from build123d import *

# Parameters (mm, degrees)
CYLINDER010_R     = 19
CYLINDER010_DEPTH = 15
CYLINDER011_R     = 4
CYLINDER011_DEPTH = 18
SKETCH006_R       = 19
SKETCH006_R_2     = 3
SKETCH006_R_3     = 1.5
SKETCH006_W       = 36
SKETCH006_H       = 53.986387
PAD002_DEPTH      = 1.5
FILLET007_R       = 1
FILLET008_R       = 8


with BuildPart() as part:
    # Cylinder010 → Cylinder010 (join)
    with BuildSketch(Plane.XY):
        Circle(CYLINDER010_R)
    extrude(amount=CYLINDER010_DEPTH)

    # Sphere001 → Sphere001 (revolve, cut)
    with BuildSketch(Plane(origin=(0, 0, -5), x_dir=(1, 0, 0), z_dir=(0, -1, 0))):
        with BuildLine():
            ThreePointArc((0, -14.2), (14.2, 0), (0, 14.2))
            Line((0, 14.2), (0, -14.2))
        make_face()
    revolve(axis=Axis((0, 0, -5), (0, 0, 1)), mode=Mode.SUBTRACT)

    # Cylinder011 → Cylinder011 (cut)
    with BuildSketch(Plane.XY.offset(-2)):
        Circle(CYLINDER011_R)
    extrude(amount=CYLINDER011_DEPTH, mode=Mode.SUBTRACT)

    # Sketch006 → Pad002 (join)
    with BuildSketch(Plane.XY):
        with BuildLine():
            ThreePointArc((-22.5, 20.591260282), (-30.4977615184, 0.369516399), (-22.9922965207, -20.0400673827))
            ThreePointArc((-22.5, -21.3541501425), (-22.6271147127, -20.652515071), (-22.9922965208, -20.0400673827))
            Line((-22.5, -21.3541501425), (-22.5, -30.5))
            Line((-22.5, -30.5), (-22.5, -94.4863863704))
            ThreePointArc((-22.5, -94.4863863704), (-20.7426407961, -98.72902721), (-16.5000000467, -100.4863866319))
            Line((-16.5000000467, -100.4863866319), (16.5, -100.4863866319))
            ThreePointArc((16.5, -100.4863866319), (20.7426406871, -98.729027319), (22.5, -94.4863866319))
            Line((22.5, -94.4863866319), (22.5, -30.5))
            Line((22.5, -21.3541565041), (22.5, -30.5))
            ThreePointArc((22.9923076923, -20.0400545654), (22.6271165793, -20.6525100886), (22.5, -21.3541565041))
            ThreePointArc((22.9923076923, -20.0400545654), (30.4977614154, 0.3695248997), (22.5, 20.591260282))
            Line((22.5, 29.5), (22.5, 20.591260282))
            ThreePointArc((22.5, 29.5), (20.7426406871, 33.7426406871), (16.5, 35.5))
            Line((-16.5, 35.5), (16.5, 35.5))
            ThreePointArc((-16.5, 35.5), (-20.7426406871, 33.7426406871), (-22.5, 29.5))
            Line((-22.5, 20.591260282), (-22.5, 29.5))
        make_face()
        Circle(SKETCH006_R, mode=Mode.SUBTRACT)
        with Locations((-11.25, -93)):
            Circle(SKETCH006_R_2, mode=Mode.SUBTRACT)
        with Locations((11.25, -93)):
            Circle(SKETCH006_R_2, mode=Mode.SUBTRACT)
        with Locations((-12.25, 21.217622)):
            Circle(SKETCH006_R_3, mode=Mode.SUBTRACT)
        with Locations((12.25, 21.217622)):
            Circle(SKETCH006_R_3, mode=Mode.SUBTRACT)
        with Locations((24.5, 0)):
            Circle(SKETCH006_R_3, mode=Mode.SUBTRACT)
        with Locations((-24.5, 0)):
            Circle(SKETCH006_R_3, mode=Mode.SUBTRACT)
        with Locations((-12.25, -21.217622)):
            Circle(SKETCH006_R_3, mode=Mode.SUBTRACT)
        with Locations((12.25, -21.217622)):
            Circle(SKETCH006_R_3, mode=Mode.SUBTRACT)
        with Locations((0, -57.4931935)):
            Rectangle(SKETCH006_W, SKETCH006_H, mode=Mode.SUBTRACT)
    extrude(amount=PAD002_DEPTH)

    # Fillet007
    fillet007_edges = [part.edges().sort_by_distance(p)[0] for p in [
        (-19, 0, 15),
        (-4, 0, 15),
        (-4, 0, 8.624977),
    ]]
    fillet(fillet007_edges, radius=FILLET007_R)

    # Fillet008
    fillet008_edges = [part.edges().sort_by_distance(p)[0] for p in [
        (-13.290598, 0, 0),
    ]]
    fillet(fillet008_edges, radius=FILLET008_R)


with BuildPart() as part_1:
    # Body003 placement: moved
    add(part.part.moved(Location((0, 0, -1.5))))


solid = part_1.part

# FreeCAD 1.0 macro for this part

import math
import FreeCAD as App
import Part
import Sketcher
from FreeCAD import Vector
Q = App.Units.Quantity


def edges_at(feature, points):
    """Names of the edges that pass closest to the given points."""
    edges = feature.Shape.Edges
    near = lambda p: min(range(len(edges)), key=lambda i: edges[i].distToShape(Part.Vertex(*p))[0])
    return sorted({f"Edge{near(p) + 1}" for p in points})

doc = App.newDocument("Part")
body = doc.addObject("PartDesign::Body", "Body")

# Sketch on XY plane
sketch1 = body.newObject("Sketcher::SketchObject", "Sketch")
sketch1.AttachmentSupport = (doc.getObject("XY_Plane"), [""])
sketch1.MapMode = "FlatFace"
sketch1.addGeometry(Part.Circle(Vector(0, 0, 0), Vector(0, 0, 1), 19), False)
sketch1.addConstraint([
    Sketcher.Constraint("Coincident", 0, 3, -1, 1),
    Sketcher.Constraint("Diameter", 0, Q("38 mm")),
])
pad1 = body.newObject("PartDesign::Pad", "Pad")
pad1.Profile = sketch1
pad1.Length = 15

# Sketch on XZ plane
sketch2 = body.newObject("Sketcher::SketchObject", "Sketch001")
sketch2.AttachmentSupport = (doc.getObject("XZ_Plane"), [""])
sketch2.MapMode = "FlatFace"
sketch2.addGeometry([
    Part.ArcOfCircle(Part.Circle(Vector(0, -5, 0), Vector(0, 0, 1), 14), math.radians(-90), math.radians(90)),
    Part.LineSegment(Vector(0, 9, 0), Vector(0, -19, 0)),
], False)
sketch2.addConstraint([
    Sketcher.Constraint("Coincident", 0, 1, 1, 2),
    Sketcher.Constraint("Coincident", 1, 1, 0, 2),
    Sketcher.Constraint("Vertical", 1),
    Sketcher.Constraint("PointOnObject", 0, 3, -2),
    Sketcher.Constraint("PointOnObject", 0, 1, -2),
    Sketcher.Constraint("Radius", 0, Q("14.2 mm")),
    Sketcher.Constraint("DistanceY", 0, 3, -1, 1, Q("5 mm")),
])
groove = body.newObject("PartDesign::Groove", "Groove")
groove.Profile = sketch2
groove.ReferenceAxis = (sketch2, ["V_Axis"])
groove.Angle = 360

# Sketch on XY plane
sketch3 = body.newObject("Sketcher::SketchObject", "Sketch002")
sketch3.AttachmentSupport = (doc.getObject("XY_Plane"), [""])
sketch3.MapMode = "FlatFace"
sketch3.AttachmentOffset = App.Placement(Vector(0, 0, -2), App.Rotation())
sketch3.addGeometry(Part.Circle(Vector(0, 0, 0), Vector(0, 0, 1), 4), False)
sketch3.addConstraint([
    Sketcher.Constraint("Coincident", 0, 3, -1, 1),
    Sketcher.Constraint("Diameter", 0, Q("8 mm")),
])
pocket1 = body.newObject("PartDesign::Pocket", "Pocket")
pocket1.Profile = sketch3
pocket1.Length = 18
pocket1.Reversed = True

# Sketch on XY plane
sketch4 = body.newObject("Sketcher::SketchObject", "Sketch003")
sketch4.AttachmentSupport = (doc.getObject("XY_Plane"), [""])
sketch4.MapMode = "FlatFace"
sketch4.addGeometry([
    Part.ArcOfCircle(Part.Circle(Vector(0, 0, 0), Vector(0, 0, 1), 30.5), math.radians(138), math.radians(221)),  # 0
    Part.ArcOfCircle(Part.Circle(Vector(-24.5, -21.4, 0), Vector(0, 0, 1), 2), math.radians(0), math.radians(41)),  # 1
    Part.LineSegment(Vector(-22.5, -21.4, 0), Vector(-22.5, -94.5, 0)),  # 2
    Part.ArcOfCircle(Part.Circle(Vector(-16.5, -94.5, 0), Vector(0, 0, 1), 6), math.radians(180), math.radians(270)),  # 3
    Part.LineSegment(Vector(-16.5, -100.5, 0), Vector(16.5, -100.5, 0)),  # 4
    Part.ArcOfCircle(Part.Circle(Vector(16.5, -94.5, 0), Vector(0, 0, 1), 6), math.radians(-90), math.radians(0)),  # 5
    Part.LineSegment(Vector(22.5, -94.5, 0), Vector(22.5, -21.4, 0)),  # 6
    Part.ArcOfCircle(Part.Circle(Vector(24.5, -21.4, 0), Vector(0, 0, 1), 2), math.radians(139), math.radians(180)),  # 7
    Part.ArcOfCircle(Part.Circle(Vector(0, 0, 0), Vector(0, 0, 1), 30.5), math.radians(-41), math.radians(42)),  # 8
    Part.LineSegment(Vector(22.5, 20.6, 0), Vector(22.5, 29.5, 0)),  # 9
    Part.ArcOfCircle(Part.Circle(Vector(16.5, 29.5, 0), Vector(0, 0, 1), 6), math.radians(0), math.radians(90)),  # 10
    Part.LineSegment(Vector(16.5, 35.5, 0), Vector(-16.5, 35.5, 0)),  # 11
    Part.ArcOfCircle(Part.Circle(Vector(-16.5, 29.5, 0), Vector(0, 0, 1), 6), math.radians(90), math.radians(180)),  # 12
    Part.LineSegment(Vector(-22.5, 29.5, 0), Vector(-22.5, 20.6, 0)),  # 13
    Part.Circle(Vector(-11.2, -93, 0), Vector(0, 0, 1), 3),  # 14
    Part.Circle(Vector(11.2, -93, 0), Vector(0, 0, 1), 3),  # 15
    Part.LineSegment(Vector(18, -84.5, 0), Vector(-18, -84.5, 0)),  # 16
    Part.LineSegment(Vector(-18, -84.5, 0), Vector(-18, -30.5, 0)),  # 17
    Part.LineSegment(Vector(-18, -30.5, 0), Vector(18, -30.5, 0)),  # 18
    Part.LineSegment(Vector(18, -30.5, 0), Vector(18, -84.5, 0)),  # 19
    Part.Circle(Vector(-12.2, -21.2, 0), Vector(0, 0, 1), 1.5),  # 20
    Part.Circle(Vector(-24.5, 0, 0), Vector(0, 0, 1), 1.5),  # 21
    Part.Circle(Vector(-12.2, 21.2, 0), Vector(0, 0, 1), 1.5),  # 22
    Part.Circle(Vector(12.2, -21.2, 0), Vector(0, 0, 1), 1.5),  # 23
    Part.Circle(Vector(0, 0, 0), Vector(0, 0, 1), 19),  # 24
    Part.Circle(Vector(12.2, 21.2, 0), Vector(0, 0, 1), 1.5),  # 25
    Part.Circle(Vector(24.5, 0, 0), Vector(0, 0, 1), 1.5),  # 26
], False)
sketch4.addConstraint([
    Sketcher.Constraint("Coincident", 0, 2, 1, 2),
    Sketcher.Constraint("Coincident", 1, 1, 2, 1),
    Sketcher.Constraint("Tangent", 2, 2, 3, 1),
    Sketcher.Constraint("Tangent", 3, 2, 4, 1),
    Sketcher.Constraint("Tangent", 4, 2, 5, 1),
    Sketcher.Constraint("Tangent", 5, 2, 6, 1),
    Sketcher.Constraint("Tangent", 6, 2, 7, 2),
    Sketcher.Constraint("Tangent", 7, 1, 8, 1),
    Sketcher.Constraint("Coincident", 8, 2, 9, 1),
    Sketcher.Constraint("Tangent", 9, 2, 10, 1),
    Sketcher.Constraint("Tangent", 10, 2, 11, 1),
    Sketcher.Constraint("Tangent", 11, 2, 12, 1),
    Sketcher.Constraint("Tangent", 12, 2, 13, 1),
    Sketcher.Constraint("Coincident", 13, 2, 0, 1),
    Sketcher.Constraint("Coincident", 16, 2, 17, 1),
    Sketcher.Constraint("Coincident", 17, 2, 18, 1),
    Sketcher.Constraint("Coincident", 18, 2, 19, 1),
    Sketcher.Constraint("Coincident", 19, 2, 16, 1),
    Sketcher.Constraint("Vertical", 2),
    Sketcher.Constraint("Horizontal", 4),
    Sketcher.Constraint("Vertical", 6),
    Sketcher.Constraint("Vertical", 9),
    Sketcher.Constraint("Horizontal", 11),
    Sketcher.Constraint("Vertical", 13),
    Sketcher.Constraint("Horizontal", 16),
    Sketcher.Constraint("Vertical", 17),
    Sketcher.Constraint("Horizontal", 18),
    Sketcher.Constraint("Vertical", 19),
    Sketcher.Constraint("Coincident", 0, 3, -1, 1),
    Sketcher.Constraint("Coincident", 8, 3, -1, 1),
    Sketcher.Constraint("Coincident", 24, 3, -1, 1),
    Sketcher.Constraint("Equal", 3, 5),
    Sketcher.Constraint("Equal", 1, 7),
    Sketcher.Constraint("Equal", 0, 8),
    Sketcher.Constraint("Equal", 5, 10),
    Sketcher.Constraint("Equal", 10, 12),
    Sketcher.Constraint("Equal", 14, 15),
    Sketcher.Constraint("Equal", 20, 21),
    Sketcher.Constraint("Equal", 21, 22),
    Sketcher.Constraint("Equal", 22, 23),
    Sketcher.Constraint("Equal", 23, 25),
    Sketcher.Constraint("Equal", 25, 26),
    Sketcher.Constraint("Symmetric", 22, 3, 23, 3, -1, 1),
    Sketcher.Constraint("Symmetric", 20, 3, 25, 3, -1, 1),
    Sketcher.Constraint("Symmetric", 21, 3, 26, 3, -1, 1),
    Sketcher.Constraint("Symmetric", 14, 3, 15, 3, -2),
    Sketcher.Constraint("Symmetric", 20, 3, 23, 3, -2),
    Sketcher.Constraint("Symmetric", 1, 1, 6, 2, -2),
    Sketcher.Constraint("PointOnObject", 21, 3, -1),
    Sketcher.Constraint("Horizontal", 8, 2, 13, 2),
    Sketcher.Constraint("Vertical", 5, 3, 10, 3),
    Sketcher.Constraint("Vertical", 1, 3, 21, 3),
    Sketcher.Constraint("Diameter", 14, Q("6 mm")),
    Sketcher.Constraint("Diameter", 20, Q("3 mm")),
    Sketcher.Constraint("Diameter", 24, Q("38 mm")),
    Sketcher.Constraint("Radius", 1, Q("2 mm")),
    Sketcher.Constraint("Radius", 3, Q("6 mm")),
    Sketcher.Constraint("Radius", 0, Q("30.5 mm")),
    Sketcher.Constraint("DistanceX", 4, 1, 4, 2, Q("33 mm")),
    Sketcher.Constraint("DistanceX", 16, 2, 16, 1, Q("36 mm")),
    Sketcher.Constraint("DistanceY", 14, 3, -1, 1, Q("93 mm")),
    Sketcher.Constraint("DistanceX", 16, 2, -1, 1, Q("18 mm")),
    Sketcher.Constraint("DistanceY", 3, 3, 16, 2, Q("10 mm")),
    Sketcher.Constraint("DistanceY", -1, 1, 10, 3, Q("29.5 mm")),
    Sketcher.Constraint("DistanceY", 17, 2, -1, 1, Q("30.5 mm")),
    Sketcher.Constraint("DistanceX", 14, 3, 15, 3, Q("22.5 mm")),
    Sketcher.Constraint("DistanceX", 20, 3, 23, 3, Q("24.5 mm")),
    Sketcher.Constraint("DistanceY", 6, 1, 6, 2, Q("73.13223 mm")),
    Sketcher.Constraint("DistanceY", 20, 3, -1, 1, Q("21.217622 mm")),
    Sketcher.Constraint("DistanceY", 1, 3, 0, 2, Q("1.314089 mm")),
])
pad2 = body.newObject("PartDesign::Pad", "Pad001")
pad2.Profile = sketch4
pad2.Length = 1.5
doc.recompute()

fillet = body.newObject("PartDesign::Fillet", "Fillet")
fillet.Base = (pad2, edges_at(pad2, [(-19, 0, 15), (-4, 0, 15), (-4, 0, 8.625)]))
fillet.Radius = 1
doc.recompute()

fillet2 = body.newObject("PartDesign::Fillet", "Fillet001")
fillet2.Base = (fillet, edges_at(fillet, [(-13.291, 0, 0)]))
fillet2.Radius = 8
body2 = doc.addObject("PartDesign::Body", "Body001")
doc.recompute()

body.Placement = App.Placement(Vector(0, 0, -1.5), App.Rotation(Vector(0, 0, 1), 0))
boolean = body2.newObject("PartDesign::Boolean", "Boolean")
boolean.Type = "Fuse"
boolean.addObjects([body])

doc.recompute()
